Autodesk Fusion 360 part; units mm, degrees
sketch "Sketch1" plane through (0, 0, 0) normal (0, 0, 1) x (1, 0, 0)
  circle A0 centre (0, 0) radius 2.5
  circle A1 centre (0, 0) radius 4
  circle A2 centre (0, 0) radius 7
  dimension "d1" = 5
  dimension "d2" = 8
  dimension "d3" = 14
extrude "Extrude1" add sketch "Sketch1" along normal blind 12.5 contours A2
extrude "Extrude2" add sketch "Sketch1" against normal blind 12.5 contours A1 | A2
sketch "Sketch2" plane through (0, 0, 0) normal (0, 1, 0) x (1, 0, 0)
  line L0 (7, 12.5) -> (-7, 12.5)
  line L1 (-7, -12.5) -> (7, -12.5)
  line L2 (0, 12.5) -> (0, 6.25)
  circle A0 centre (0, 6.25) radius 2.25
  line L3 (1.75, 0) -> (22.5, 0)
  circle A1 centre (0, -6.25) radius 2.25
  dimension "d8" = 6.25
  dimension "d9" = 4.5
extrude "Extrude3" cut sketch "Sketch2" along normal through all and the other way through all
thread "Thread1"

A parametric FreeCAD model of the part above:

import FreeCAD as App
import Part
import Sketcher
Q = App.Units.Quantity

doc = App.newDocument("Part")
body = doc.addObject("PartDesign::Body", "Body")

# Sketch on XY plane
sketch1 = body.newObject("Sketcher::SketchObject", "Sketch")
sketch1.AttachmentSupport = (doc.getObject("XY_Plane"), [""])
sketch1.MapMode = "FlatFace"
sketch1.addGeometry([
    Part.Circle(App.Vector(0, 0, 0), App.Vector(0, 0, 1), 7),
    Part.Circle(App.Vector(0, 0, 0), App.Vector(0, 0, 1), 4),
], False)
sketch1.addConstraint([
    Sketcher.Constraint("Coincident", 0, 3, -1, 1),
    Sketcher.Constraint("Coincident", 1, 3, -1, 1),
    Sketcher.Constraint("Diameter", 0, Q("14 mm")),
    Sketcher.Constraint("Diameter", 1, Q("8 mm")),
])
pad1 = body.newObject("PartDesign::Pad", "Pad")
pad1.Profile = sketch1
pad1.Length = 12.5

# Sketch on XY plane
sketch2 = body.newObject("Sketcher::SketchObject", "Sketch001")
sketch2.AttachmentSupport = (doc.getObject("XY_Plane"), [""])
sketch2.MapMode = "FlatFace"
sketch2.addGeometry([
    Part.Circle(App.Vector(0, 0, 0), App.Vector(0, 0, 1), 7),
    Part.Circle(App.Vector(0, 0, 0), App.Vector(0, 0, 1), 2.5),
], False)
sketch2.addConstraint([
    Sketcher.Constraint("Coincident", 0, 3, -1, 1),
    Sketcher.Constraint("Coincident", 1, 3, -1, 1),
    Sketcher.Constraint("Diameter", 0, Q("14 mm")),
    Sketcher.Constraint("Diameter", 1, Q("5 mm")),
])
pad2 = body.newObject("PartDesign::Pad", "Pad001")
pad2.Profile = sketch2
pad2.Length = 12.5
pad2.Reversed = True

# Sketch on XZ plane
sketch3 = body.newObject("Sketcher::SketchObject", "Sketch002")
sketch3.AttachmentSupport = (doc.getObject("XZ_Plane"), [""])
sketch3.MapMode = "FlatFace"
sketch3.addGeometry([
    Part.Circle(App.Vector(0, -6.25, 0), App.Vector(0, 0, 1), 2.25),
    Part.Circle(App.Vector(0, 6.25, 0), App.Vector(0, 0, 1), 2.25),
], False)
sketch3.addConstraint([
    Sketcher.Constraint("Equal", 0, 1),
    Sketcher.Constraint("Symmetric", 0, 3, 1, 3, -1, 1),
    Sketcher.Constraint("PointOnObject", 0, 3, -2),
    Sketcher.Constraint("Diameter", 0, Q("4.5 mm")),
    Sketcher.Constraint("DistanceY", 0, 3, -1, 1, Q("6.25 mm")),
])
pocket1 = body.newObject("PartDesign::Pocket", "Pocket")
pocket1.Profile = sketch3
pocket1.Type = "ThroughAll"
pocket1.Midplane = True

doc.recompute()
